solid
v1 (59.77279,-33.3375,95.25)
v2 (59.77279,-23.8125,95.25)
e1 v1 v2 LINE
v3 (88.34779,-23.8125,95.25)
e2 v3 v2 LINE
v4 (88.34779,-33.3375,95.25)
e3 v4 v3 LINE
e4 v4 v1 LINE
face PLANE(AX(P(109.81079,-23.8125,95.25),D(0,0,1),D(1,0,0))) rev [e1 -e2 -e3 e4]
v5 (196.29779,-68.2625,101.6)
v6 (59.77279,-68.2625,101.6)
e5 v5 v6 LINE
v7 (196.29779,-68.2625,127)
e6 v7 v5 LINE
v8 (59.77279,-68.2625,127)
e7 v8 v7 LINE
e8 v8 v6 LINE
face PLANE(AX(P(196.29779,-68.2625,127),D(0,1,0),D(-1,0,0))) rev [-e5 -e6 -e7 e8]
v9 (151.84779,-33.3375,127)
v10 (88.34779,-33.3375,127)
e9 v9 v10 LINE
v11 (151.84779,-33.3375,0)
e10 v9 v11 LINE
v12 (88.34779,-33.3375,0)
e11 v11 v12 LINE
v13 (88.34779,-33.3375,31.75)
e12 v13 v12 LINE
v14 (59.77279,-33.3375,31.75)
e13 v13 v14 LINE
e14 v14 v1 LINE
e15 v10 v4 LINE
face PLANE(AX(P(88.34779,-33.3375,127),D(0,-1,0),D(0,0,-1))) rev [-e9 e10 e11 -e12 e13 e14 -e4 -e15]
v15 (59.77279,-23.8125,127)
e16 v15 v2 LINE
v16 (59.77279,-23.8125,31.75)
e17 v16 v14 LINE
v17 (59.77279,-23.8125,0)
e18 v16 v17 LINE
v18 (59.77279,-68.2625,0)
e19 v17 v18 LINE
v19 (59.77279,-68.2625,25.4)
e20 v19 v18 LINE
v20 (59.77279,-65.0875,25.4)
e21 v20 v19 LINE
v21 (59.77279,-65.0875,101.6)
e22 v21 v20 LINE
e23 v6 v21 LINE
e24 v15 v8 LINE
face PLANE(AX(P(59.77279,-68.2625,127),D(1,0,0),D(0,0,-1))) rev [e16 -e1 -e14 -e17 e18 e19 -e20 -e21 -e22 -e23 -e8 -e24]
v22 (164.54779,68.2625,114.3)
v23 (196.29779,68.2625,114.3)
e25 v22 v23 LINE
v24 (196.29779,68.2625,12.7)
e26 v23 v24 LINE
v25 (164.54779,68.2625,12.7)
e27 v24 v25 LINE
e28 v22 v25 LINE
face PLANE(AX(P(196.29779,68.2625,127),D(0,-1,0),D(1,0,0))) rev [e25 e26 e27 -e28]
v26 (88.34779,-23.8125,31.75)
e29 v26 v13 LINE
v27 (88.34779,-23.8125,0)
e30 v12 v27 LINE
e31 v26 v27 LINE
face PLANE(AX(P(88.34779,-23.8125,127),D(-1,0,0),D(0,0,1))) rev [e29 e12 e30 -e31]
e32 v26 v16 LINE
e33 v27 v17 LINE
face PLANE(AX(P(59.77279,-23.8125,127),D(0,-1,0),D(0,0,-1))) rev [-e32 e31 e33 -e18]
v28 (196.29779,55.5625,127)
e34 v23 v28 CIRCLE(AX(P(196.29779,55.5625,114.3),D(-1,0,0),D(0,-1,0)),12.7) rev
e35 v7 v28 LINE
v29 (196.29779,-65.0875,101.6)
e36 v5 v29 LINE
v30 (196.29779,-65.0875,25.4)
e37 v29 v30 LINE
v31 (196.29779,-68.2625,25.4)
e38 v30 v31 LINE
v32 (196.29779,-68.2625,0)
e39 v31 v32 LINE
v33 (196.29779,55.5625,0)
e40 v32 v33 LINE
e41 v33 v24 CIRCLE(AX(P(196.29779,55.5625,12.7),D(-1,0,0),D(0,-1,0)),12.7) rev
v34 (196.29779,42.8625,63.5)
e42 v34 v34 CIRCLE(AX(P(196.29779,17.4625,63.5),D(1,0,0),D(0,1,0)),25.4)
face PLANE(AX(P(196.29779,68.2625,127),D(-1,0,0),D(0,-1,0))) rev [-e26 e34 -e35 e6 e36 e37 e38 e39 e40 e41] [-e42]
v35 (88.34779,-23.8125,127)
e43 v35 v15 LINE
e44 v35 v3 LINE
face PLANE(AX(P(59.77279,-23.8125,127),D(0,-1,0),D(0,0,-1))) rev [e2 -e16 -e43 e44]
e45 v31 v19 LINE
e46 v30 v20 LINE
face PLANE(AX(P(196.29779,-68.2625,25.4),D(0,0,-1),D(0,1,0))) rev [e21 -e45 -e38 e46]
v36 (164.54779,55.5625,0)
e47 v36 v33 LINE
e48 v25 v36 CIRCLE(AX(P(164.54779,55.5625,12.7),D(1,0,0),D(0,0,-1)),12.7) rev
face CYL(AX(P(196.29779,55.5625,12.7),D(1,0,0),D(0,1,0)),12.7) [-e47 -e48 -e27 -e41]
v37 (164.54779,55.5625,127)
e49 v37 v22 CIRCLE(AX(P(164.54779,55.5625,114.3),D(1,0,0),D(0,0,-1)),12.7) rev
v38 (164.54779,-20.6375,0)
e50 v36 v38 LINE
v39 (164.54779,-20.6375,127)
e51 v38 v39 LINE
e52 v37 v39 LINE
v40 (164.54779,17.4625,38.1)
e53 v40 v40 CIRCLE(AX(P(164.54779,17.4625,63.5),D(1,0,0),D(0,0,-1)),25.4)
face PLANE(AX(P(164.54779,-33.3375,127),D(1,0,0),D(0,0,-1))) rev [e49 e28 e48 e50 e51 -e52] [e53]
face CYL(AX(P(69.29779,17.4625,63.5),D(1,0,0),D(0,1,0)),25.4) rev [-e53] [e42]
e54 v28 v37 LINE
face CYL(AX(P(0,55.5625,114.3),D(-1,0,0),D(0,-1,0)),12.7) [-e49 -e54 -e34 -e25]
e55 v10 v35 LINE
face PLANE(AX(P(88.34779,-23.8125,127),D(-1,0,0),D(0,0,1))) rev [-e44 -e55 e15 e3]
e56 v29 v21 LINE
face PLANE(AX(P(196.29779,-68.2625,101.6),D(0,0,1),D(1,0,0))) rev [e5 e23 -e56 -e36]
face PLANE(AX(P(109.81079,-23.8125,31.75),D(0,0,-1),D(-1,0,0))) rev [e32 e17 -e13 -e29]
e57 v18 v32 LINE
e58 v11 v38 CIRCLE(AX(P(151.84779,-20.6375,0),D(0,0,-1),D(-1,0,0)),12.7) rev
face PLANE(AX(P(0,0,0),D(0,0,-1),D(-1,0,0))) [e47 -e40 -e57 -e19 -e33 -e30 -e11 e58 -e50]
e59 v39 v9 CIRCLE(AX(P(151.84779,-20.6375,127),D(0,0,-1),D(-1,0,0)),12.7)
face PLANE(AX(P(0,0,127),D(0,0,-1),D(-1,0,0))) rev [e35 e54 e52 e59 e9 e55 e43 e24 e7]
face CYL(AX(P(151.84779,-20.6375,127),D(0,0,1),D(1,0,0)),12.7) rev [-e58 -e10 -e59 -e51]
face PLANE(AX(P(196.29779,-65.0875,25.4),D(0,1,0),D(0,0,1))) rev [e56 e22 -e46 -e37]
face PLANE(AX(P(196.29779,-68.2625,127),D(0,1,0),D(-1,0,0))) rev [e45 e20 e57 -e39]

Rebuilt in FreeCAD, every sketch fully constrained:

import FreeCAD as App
import Part
import Sketcher
from FreeCAD import Vector
Q = App.Units.Quantity


def edges_at(feature, points):
    """Names of the edges that pass closest to the given points."""
    edges = feature.Shape.Edges
    near = lambda p: min(range(len(edges)), key=lambda i: edges[i].distToShape(Part.Vertex(*p))[0])
    return sorted({f"Edge{near(p) + 1}" for p in points})

doc = App.newDocument("Part")
params = doc.addObject("Spreadsheet::Sheet", "Params")
for row, (alias, value) in enumerate([
    ("sketch1_width", "3 in"),
    ("sketch1_height", "4 in"),
    ("sketch1_width2", "1.25 in"),
    ("sketch1_height2", "1.75 in"),
    ("sketch1_width3", "1.125 in"),
    ("pad1_length", "5 in"),
    ("sketch2_diameter", "2 in"),
    ("pocket1_length", "5 in"),
    ("sketch3_height", "3 in"),
    ("sketch3_width", "0.125 in"),
    ("sketch4_height", "2.5 in"),
    ("sketch4_width", "0.375 in"),
    ("pocket3_length", "1.97 in"),
    ("fillet_radius", "0.5 in"),
], start=1):
    params.set(f"A{row}", alias)
    params.set(f"B{row}", "=" + value)
    params.setAlias(f"B{row}", alias)

body = doc.addObject("PartDesign::Body", "Body")

# Sketch on XY plane
sketch1 = body.newObject("Sketcher::SketchObject", "Sketch")
sketch1.AttachmentSupport = (doc.getObject("XY_Plane"), [""])
sketch1.MapMode = "FlatFace"
sketch1.addGeometry([
    Part.LineSegment(Vector(196, -68, 0), Vector(196, 68, 0)),  # 0
    Part.LineSegment(Vector(196, 68, 0), Vector(165, 68, 0)),  # 1
    Part.LineSegment(Vector(165, 68, 0), Vector(165, -33, 0)),  # 2
    Part.LineSegment(Vector(165, -33, 0), Vector(88, -33, 0)),  # 3
    Part.LineSegment(Vector(88, -33, 0), Vector(88, -24, 0)),  # 4
    Part.LineSegment(Vector(88, -24, 0), Vector(60, -24, 0)),  # 5
    Part.LineSegment(Vector(60, -24, 0), Vector(60, -68, 0)),  # 6
    Part.LineSegment(Vector(60, -68, 0), Vector(196, -68, 0)),  # 7
], False)
sketch1.addConstraint([
    Sketcher.Constraint("Coincident", 0, 2, 1, 1),
    Sketcher.Constraint("Coincident", 1, 2, 2, 1),
    Sketcher.Constraint("Coincident", 2, 2, 3, 1),
    Sketcher.Constraint("Coincident", 3, 2, 4, 1),
    Sketcher.Constraint("Coincident", 4, 2, 5, 1),
    Sketcher.Constraint("Coincident", 5, 2, 6, 1),
    Sketcher.Constraint("Coincident", 6, 2, 7, 1),
    Sketcher.Constraint("Coincident", 7, 2, 0, 1),
    Sketcher.Constraint("Vertical", 0),
    Sketcher.Constraint("Horizontal", 1),
    Sketcher.Constraint("Vertical", 2),
    Sketcher.Constraint("Horizontal", 3),
    Sketcher.Constraint("Vertical", 4),
    Sketcher.Constraint("Horizontal", 5),
    Sketcher.Constraint("Vertical", 6),
    Sketcher.Constraint("Horizontal", 7),
    Sketcher.Constraint("Equal", 7, 0),
    Sketcher.Constraint("DistanceX", 3, 2, 3, 1, Q("3 in")),
    Sketcher.Constraint("DistanceY", 2, 2, 2, 1, Q("4 in")),
    Sketcher.Constraint("DistanceX", 1, 2, 1, 1, Q("1.25 in")),
    Sketcher.Constraint("DistanceY", 6, 2, 6, 1, Q("1.75 in")),
    Sketcher.Constraint("DistanceX", 5, 2, 5, 1, Q("1.125 in")),
    Sketcher.Constraint("DistanceY", -1, 1, 0, 2, Q("2.6875 in")),
    Sketcher.Constraint("DistanceX", -1, 1, 0, 2, Q("196.29779 mm")),
])
sketch1.setExpression("Constraints[17]", "Params.sketch1_width")
sketch1.setExpression("Constraints[18]", "Params.sketch1_height")
sketch1.setExpression("Constraints[19]", "Params.sketch1_width2")
sketch1.setExpression("Constraints[20]", "Params.sketch1_height2")
sketch1.setExpression("Constraints[21]", "Params.sketch1_width3")
pad1 = body.newObject("PartDesign::Pad", "Pad")
pad1.Profile = sketch1
pad1.setExpression("Length", "Params.pad1_length")

# Sketch on YZ plane
sketch2 = body.newObject("Sketcher::SketchObject", "Sketch001")
sketch2.AttachmentSupport = (doc.getObject("YZ_Plane"), [""])
sketch2.MapMode = "FlatFace"
sketch2.AttachmentOffset = App.Placement(Vector(0, 0, 196.29779), App.Rotation())
sketch2.addGeometry(Part.Circle(Vector(17, 64, 0), Vector(0, 0, 1), 25), False)
sketch2.addConstraint([
    Sketcher.Constraint("Diameter", 0, Q("2 in")),
    Sketcher.Constraint("DistanceY", -1, 1, 0, 3, Q("2.5 in")),
    Sketcher.Constraint("DistanceX", -1, 1, 0, 3, Q("0.6875 in")),
])
sketch2.setExpression("Constraints[0]", "Params.sketch2_diameter")
pocket1 = body.newObject("PartDesign::Pocket", "Pocket")
pocket1.Profile = sketch2
pocket1.setExpression("Length", "Params.pocket1_length")

# Sketch on YZ plane
sketch3 = body.newObject("Sketcher::SketchObject", "Sketch002")
sketch3.AttachmentSupport = (doc.getObject("YZ_Plane"), [""])
sketch3.MapMode = "FlatFace"
sketch3.AttachmentOffset = App.Placement(Vector(0, 0, 59.77279), App.Rotation())
sketch3.addGeometry([
    Part.LineSegment(Vector(-65.1, 25.4, 0), Vector(-68.3, 25.4, 0)),
    Part.LineSegment(Vector(-68.3, 25.4, 0), Vector(-68.3, 101.6, 0)),
    Part.LineSegment(Vector(-68.3, 101.6, 0), Vector(-65.1, 101.6, 0)),
    Part.LineSegment(Vector(-65.1, 101.6, 0), Vector(-65.1, 25.4, 0)),
], False)
sketch3.addConstraint([
    Sketcher.Constraint("Coincident", 0, 2, 1, 1),
    Sketcher.Constraint("Coincident", 1, 2, 2, 1),
    Sketcher.Constraint("Coincident", 2, 2, 3, 1),
    Sketcher.Constraint("Coincident", 3, 2, 0, 1),
    Sketcher.Constraint("Horizontal", 0),
    Sketcher.Constraint("Vertical", 1),
    Sketcher.Constraint("Horizontal", 2),
    Sketcher.Constraint("Vertical", 3),
    Sketcher.Constraint("DistanceY", 1, 1, 1, 2, Q("3 in")),
    Sketcher.Constraint("DistanceY", -1, 1, 0, 2, Q("1 in")),
    Sketcher.Constraint("DistanceX", 0, 2, 0, 1, Q("0.125 in")),
    Sketcher.Constraint("DistanceX", 0, 2, -1, 1, Q("2.6875 in")),
])
sketch3.setExpression("Constraints[8]", "Params.sketch3_height")
sketch3.setExpression("Constraints[10]", "Params.sketch3_width")
pocket2 = body.newObject("PartDesign::Pocket", "Pocket001")
pocket2.Profile = sketch3
pocket2.Type = "ThroughAll"
pocket2.Reversed = True

# Sketch on YZ plane
sketch4 = body.newObject("Sketcher::SketchObject", "Sketch003")
sketch4.AttachmentSupport = (doc.getObject("YZ_Plane"), [""])
sketch4.MapMode = "FlatFace"
sketch4.AttachmentOffset = App.Placement(Vector(0, 0, 59.77279), App.Rotation())
sketch4.addGeometry([
    Part.LineSegment(Vector(-24, 32, 0), Vector(-33, 32, 0)),
    Part.LineSegment(Vector(-33, 32, 0), Vector(-33, 95, 0)),
    Part.LineSegment(Vector(-33, 95, 0), Vector(-24, 95, 0)),
    Part.LineSegment(Vector(-24, 95, 0), Vector(-24, 32, 0)),
], False)
sketch4.addConstraint([
    Sketcher.Constraint("Coincident", 0, 2, 1, 1),
    Sketcher.Constraint("Coincident", 1, 2, 2, 1),
    Sketcher.Constraint("Coincident", 2, 2, 3, 1),
    Sketcher.Constraint("Coincident", 3, 2, 0, 1),
    Sketcher.Constraint("Horizontal", 0),
    Sketcher.Constraint("Vertical", 1),
    Sketcher.Constraint("Horizontal", 2),
    Sketcher.Constraint("Vertical", 3),
    Sketcher.Constraint("DistanceY", 1, 1, 1, 2, Q("2.5 in")),
    Sketcher.Constraint("DistanceX", 0, 2, 0, 1, Q("0.375 in")),
    Sketcher.Constraint("DistanceY", -1, 1, 0, 2, Q("1.25 in")),
    Sketcher.Constraint("DistanceX", 0, 2, -1, 1, Q("1.3125 in")),
])
sketch4.setExpression("Constraints[8]", "Params.sketch4_height")
sketch4.setExpression("Constraints[9]", "Params.sketch4_width")
pocket3 = body.newObject("PartDesign::Pocket", "Pocket002")
pocket3.Profile = sketch4
pocket3.setExpression("Length", "Params.pocket3_length")
pocket3.Reversed = True
doc.recompute()

fillet = body.newObject("PartDesign::Fillet", "Fillet")
fillet.Base = (pocket3, edges_at(pocket3, [(180.423, 68.263, 0), (164.548, -33.337, 63.5), (180.423, 68.263, 127)]))
fillet.setExpression("Radius", "Params.fillet_radius")

doc.recompute()
